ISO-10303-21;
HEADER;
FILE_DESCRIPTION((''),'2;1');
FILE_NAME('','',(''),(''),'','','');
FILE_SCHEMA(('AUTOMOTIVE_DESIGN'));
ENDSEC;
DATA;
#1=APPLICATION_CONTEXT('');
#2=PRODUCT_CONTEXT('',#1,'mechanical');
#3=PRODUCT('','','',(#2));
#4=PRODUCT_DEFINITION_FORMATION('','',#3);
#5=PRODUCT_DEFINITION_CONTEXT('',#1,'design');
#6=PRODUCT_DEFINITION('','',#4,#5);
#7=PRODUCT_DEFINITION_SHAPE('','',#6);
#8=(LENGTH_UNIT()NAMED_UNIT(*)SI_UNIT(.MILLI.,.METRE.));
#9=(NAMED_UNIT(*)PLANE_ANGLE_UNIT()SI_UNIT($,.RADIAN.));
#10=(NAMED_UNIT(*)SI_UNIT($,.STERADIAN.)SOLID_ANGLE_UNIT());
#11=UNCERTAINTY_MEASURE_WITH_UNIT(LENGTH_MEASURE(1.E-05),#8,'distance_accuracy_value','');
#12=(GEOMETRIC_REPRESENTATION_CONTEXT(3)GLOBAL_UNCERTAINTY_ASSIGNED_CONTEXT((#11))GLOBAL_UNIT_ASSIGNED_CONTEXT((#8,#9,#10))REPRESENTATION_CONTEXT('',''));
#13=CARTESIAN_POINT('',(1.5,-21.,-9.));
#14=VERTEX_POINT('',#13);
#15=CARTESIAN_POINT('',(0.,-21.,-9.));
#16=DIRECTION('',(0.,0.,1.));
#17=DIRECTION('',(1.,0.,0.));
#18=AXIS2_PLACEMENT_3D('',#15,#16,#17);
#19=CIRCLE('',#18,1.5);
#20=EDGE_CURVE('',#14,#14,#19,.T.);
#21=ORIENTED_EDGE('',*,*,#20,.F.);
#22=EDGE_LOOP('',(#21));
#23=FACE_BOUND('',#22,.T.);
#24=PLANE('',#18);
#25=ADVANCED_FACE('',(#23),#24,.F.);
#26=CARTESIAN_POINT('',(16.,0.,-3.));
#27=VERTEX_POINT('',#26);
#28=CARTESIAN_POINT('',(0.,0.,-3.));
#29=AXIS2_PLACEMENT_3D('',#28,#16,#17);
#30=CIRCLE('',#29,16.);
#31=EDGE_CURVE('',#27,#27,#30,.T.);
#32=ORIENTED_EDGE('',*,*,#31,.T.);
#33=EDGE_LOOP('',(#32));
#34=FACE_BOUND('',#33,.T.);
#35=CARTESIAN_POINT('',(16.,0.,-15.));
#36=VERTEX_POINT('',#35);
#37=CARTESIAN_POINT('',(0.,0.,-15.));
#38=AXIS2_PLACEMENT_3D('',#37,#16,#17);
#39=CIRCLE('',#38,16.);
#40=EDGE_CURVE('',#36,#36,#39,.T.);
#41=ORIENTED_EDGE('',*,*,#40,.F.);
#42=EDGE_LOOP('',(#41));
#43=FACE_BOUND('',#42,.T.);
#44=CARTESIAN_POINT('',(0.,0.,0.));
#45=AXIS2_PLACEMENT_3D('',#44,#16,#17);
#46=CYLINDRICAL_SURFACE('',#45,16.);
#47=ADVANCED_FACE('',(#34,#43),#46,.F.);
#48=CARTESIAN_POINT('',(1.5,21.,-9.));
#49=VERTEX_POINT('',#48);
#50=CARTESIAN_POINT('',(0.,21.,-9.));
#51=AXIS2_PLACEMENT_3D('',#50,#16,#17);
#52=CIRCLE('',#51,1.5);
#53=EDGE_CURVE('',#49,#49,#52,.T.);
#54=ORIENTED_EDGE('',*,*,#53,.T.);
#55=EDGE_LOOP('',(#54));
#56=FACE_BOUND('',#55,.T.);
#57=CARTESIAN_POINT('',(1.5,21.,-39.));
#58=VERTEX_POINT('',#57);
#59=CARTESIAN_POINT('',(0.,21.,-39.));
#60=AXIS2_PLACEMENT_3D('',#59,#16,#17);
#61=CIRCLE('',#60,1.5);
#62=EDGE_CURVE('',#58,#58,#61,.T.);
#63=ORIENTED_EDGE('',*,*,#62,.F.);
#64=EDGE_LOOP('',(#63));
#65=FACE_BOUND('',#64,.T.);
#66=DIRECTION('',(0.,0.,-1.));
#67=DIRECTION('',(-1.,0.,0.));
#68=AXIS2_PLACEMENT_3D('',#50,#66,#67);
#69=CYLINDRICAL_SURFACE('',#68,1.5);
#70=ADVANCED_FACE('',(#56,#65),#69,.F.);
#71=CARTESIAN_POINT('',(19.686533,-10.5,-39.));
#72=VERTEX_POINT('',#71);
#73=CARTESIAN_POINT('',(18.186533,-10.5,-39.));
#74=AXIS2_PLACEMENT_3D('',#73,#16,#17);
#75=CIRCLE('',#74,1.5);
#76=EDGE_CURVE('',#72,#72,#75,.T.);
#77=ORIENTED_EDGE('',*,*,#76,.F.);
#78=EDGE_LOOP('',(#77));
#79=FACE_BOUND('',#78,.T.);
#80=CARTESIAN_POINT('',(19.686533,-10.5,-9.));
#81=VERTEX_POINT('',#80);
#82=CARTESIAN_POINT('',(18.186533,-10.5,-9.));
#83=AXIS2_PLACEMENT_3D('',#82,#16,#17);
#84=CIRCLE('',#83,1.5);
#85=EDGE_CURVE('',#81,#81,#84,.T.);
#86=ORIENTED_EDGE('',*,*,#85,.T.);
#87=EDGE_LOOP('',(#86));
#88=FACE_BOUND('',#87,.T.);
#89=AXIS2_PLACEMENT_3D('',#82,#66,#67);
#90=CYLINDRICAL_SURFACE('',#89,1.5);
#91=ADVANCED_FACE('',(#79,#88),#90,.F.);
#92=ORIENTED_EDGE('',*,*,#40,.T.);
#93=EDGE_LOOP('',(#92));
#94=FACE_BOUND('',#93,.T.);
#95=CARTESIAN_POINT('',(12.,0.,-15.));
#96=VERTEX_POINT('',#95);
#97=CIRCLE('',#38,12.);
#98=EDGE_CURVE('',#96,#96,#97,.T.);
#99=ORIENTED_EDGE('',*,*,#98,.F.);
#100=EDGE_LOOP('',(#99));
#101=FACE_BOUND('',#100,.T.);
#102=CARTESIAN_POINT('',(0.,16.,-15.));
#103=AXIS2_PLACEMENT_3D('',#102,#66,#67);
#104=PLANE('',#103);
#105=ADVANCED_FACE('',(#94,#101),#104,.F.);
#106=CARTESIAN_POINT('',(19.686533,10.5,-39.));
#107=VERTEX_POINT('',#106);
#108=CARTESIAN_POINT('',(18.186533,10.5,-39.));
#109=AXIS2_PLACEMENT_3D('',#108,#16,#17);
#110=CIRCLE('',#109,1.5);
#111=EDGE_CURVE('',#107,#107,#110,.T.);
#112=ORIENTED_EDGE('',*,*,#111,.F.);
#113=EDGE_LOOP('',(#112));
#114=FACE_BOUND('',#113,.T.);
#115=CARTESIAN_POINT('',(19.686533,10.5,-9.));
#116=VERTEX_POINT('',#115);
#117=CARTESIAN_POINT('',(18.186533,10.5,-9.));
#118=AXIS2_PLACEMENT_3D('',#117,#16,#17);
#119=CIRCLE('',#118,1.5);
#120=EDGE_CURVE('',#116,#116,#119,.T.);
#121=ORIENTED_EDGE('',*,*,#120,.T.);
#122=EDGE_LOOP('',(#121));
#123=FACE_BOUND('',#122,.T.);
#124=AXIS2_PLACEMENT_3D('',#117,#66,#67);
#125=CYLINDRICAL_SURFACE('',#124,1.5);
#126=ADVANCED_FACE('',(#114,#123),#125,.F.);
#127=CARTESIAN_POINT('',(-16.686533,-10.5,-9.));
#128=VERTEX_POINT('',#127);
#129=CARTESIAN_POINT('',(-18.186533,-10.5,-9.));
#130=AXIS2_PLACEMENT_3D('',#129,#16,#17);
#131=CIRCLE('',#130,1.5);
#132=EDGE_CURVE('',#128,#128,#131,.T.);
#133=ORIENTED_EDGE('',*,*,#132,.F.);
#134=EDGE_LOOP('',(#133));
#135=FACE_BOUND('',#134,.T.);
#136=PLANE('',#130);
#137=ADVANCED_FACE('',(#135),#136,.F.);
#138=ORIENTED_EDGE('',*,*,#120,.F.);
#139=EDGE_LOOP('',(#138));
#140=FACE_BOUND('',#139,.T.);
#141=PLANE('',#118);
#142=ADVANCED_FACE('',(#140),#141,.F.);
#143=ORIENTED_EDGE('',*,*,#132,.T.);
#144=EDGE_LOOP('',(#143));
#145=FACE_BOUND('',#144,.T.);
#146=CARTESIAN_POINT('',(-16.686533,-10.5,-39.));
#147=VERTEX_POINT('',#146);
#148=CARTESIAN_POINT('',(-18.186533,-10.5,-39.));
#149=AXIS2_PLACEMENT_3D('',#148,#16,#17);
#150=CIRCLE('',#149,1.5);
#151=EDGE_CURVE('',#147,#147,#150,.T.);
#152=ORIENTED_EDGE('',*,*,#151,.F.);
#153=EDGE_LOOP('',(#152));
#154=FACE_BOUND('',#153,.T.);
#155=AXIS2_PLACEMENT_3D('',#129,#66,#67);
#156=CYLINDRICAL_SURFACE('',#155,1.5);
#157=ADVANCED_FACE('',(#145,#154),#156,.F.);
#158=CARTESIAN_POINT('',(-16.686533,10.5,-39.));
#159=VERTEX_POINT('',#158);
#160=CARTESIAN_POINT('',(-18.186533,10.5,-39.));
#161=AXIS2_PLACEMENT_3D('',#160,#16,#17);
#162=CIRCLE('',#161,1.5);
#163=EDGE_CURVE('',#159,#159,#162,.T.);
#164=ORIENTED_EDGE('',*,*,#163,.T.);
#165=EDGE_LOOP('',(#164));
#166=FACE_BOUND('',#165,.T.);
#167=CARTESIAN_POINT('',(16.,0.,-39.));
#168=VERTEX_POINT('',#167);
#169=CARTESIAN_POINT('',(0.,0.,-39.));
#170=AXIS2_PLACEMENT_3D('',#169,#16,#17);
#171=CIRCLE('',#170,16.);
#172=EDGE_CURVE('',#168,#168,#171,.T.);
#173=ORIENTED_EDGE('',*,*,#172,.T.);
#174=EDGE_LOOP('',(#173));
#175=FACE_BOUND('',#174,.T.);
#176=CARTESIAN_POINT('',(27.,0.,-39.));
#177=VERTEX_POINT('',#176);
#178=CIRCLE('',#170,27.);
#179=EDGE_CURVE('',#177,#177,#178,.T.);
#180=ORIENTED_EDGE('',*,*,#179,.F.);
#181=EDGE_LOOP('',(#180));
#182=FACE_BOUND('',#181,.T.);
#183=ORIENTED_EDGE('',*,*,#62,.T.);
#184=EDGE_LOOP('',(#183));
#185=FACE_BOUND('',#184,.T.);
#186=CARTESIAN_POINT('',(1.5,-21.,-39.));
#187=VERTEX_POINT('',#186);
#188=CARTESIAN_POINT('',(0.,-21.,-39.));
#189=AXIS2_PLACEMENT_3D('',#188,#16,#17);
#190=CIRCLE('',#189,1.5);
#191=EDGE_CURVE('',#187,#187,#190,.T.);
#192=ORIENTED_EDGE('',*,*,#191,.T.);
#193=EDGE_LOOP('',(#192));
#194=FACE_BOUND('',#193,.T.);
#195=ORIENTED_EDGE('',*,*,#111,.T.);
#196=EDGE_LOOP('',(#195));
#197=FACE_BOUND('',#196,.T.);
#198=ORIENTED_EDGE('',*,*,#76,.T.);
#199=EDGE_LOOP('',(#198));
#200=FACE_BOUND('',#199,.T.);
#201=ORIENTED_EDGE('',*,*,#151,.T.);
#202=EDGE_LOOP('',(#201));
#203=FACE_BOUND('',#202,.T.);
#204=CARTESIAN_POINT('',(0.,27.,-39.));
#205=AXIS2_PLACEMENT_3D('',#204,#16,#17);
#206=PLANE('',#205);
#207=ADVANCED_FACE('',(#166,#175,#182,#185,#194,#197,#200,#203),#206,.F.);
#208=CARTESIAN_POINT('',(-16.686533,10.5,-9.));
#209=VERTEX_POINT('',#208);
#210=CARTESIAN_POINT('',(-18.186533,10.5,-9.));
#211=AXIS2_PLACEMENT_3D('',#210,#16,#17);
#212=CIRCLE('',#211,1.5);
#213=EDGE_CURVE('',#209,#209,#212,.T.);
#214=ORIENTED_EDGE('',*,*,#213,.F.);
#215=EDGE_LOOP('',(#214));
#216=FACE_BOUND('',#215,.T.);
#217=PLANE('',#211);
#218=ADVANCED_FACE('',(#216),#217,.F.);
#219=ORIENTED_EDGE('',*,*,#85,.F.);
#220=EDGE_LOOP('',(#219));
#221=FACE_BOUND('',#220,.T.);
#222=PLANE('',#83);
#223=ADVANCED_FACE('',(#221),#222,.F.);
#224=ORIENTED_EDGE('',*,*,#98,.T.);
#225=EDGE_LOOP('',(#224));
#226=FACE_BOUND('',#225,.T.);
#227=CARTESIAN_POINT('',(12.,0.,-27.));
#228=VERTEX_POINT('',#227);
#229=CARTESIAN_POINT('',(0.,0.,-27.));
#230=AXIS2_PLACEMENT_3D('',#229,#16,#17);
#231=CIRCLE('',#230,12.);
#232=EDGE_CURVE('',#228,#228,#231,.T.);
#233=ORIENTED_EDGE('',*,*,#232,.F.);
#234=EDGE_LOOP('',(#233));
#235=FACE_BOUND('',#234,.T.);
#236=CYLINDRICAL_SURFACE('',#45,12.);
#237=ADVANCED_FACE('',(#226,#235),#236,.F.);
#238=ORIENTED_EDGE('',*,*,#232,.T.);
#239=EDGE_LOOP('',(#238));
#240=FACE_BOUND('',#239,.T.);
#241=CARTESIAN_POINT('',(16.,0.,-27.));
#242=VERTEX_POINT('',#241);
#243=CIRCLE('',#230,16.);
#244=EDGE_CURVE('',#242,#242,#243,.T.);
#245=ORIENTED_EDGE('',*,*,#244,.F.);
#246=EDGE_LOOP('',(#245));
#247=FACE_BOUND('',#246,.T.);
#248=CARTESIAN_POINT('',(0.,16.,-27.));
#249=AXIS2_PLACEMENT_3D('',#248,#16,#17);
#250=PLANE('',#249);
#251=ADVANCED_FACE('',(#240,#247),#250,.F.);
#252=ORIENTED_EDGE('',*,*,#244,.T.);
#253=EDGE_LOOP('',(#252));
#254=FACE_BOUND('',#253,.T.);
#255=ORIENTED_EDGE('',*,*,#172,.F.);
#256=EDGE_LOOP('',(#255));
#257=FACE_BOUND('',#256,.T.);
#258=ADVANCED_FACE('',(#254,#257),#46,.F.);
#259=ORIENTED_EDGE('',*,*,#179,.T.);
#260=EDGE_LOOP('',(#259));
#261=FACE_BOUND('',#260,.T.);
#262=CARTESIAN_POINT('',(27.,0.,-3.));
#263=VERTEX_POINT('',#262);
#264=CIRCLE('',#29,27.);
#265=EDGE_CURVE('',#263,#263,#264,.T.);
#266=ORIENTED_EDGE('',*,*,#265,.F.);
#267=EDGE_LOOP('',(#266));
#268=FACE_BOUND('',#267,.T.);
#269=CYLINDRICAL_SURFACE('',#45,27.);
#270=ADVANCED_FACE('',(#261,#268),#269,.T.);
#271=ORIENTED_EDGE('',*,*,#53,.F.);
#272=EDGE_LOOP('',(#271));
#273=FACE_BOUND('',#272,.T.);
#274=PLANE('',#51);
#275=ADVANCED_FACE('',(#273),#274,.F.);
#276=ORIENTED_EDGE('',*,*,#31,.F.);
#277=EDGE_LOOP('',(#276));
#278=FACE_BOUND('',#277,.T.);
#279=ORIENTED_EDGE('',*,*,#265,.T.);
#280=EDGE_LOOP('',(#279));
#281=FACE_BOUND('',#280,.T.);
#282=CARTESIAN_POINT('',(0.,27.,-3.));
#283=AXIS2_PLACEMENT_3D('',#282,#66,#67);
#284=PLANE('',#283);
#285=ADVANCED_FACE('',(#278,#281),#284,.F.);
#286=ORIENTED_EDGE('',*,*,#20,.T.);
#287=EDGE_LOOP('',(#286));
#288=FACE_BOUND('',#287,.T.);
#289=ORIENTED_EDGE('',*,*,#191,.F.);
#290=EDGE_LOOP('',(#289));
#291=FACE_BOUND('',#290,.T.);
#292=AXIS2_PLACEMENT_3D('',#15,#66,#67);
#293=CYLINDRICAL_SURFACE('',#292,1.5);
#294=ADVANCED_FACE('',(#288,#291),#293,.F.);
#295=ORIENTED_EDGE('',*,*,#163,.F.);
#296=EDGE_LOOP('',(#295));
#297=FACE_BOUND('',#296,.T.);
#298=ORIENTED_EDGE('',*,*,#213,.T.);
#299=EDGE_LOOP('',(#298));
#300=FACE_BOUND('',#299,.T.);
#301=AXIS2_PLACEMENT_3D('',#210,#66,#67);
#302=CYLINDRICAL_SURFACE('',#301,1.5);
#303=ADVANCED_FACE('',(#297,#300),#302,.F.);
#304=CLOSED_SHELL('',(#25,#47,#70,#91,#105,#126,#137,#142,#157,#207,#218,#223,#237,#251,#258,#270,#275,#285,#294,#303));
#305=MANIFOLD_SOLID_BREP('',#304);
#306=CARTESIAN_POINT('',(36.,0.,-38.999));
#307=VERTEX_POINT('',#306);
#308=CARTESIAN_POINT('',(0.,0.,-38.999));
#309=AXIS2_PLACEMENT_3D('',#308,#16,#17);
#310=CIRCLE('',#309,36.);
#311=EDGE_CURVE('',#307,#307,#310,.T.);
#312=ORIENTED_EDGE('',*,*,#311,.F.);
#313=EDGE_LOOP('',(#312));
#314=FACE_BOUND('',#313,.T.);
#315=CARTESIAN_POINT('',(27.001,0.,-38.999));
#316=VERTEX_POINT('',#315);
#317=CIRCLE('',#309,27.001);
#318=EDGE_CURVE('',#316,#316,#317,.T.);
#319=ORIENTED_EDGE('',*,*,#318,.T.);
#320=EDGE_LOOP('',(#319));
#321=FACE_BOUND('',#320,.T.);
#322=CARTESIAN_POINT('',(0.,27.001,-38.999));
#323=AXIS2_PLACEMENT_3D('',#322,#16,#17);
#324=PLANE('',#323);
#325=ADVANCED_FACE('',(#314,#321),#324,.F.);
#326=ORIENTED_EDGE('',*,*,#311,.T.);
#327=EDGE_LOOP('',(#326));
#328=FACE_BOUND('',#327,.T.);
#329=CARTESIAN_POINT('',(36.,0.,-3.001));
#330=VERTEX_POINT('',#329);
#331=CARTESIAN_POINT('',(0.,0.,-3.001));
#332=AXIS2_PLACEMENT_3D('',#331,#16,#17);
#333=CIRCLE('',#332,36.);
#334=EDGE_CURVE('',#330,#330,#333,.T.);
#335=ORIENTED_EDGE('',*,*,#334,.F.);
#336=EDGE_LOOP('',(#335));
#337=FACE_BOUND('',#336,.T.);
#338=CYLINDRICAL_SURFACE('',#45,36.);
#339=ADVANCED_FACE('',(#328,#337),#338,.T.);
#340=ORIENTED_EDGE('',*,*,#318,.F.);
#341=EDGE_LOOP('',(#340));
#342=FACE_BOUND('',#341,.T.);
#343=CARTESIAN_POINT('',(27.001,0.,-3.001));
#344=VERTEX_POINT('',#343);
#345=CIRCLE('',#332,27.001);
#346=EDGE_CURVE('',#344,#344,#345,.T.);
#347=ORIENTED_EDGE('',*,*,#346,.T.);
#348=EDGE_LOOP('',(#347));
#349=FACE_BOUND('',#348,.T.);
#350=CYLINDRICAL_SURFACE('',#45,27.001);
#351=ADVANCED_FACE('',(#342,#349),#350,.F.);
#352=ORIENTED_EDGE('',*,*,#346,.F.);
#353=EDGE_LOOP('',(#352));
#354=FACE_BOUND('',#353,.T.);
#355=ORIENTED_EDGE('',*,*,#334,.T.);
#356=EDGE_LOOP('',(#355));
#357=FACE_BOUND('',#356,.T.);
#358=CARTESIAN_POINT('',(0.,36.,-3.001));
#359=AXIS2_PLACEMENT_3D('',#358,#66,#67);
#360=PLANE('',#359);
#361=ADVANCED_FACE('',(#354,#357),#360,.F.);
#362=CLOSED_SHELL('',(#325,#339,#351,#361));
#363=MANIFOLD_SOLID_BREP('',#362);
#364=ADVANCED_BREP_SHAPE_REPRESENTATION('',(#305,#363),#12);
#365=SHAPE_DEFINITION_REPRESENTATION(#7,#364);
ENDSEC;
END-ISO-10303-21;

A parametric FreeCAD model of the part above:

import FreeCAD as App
import Part
import Sketcher
from FreeCAD import Vector
Q = App.Units.Quantity


def add_polygon(sketch, points):
    """Adds a closed chain of lines whose ends are joined by coincident constraints."""
    first, n = sketch.GeometryCount, len(points)
    for a, b in zip(points, points[1:] + points[:1]):
        sketch.addGeometry(Part.LineSegment(App.Vector(*a, 0), App.Vector(*b, 0)), False)
    for i in range(n):
        sketch.addConstraint(Sketcher.Constraint("Coincident", first + i, 2, first + (i + 1) % n, 1))

doc = App.newDocument("Part")
body = doc.addObject("PartDesign::Body", "Body")

# Sketch on YZ plane
sketch1 = body.newObject("Sketcher::SketchObject", "Sketch")
sketch1.AttachmentSupport = (doc.getObject("YZ_Plane"), [""])
sketch1.MapMode = "FlatFace"
add_polygon(sketch1, [(27, -39), (27, -3), (16, -3), (16, -15), (12, -15), (12, -27), (16, -27), (16, -39)])  # lines 0-7
sketch1.addConstraint(Sketcher.Constraint("Vertical", 0))
sketch1.addConstraint(Sketcher.Constraint("Horizontal", 1))
sketch1.addConstraint(Sketcher.Constraint("Vertical", 2))
sketch1.addConstraint(Sketcher.Constraint("Horizontal", 3))
sketch1.addConstraint(Sketcher.Constraint("Vertical", 4))
sketch1.addConstraint(Sketcher.Constraint("Horizontal", 5))
sketch1.addConstraint(Sketcher.Constraint("Vertical", 6))
sketch1.addConstraint(Sketcher.Constraint("Horizontal", 7))
sketch1.addConstraint(Sketcher.Constraint("Vertical", 2, 2, 5, 2))
sketch1.addConstraint(Sketcher.Constraint("Equal", 2, 4))
sketch1.addConstraint(Sketcher.Constraint("Equal", 4, 6))
sketch1.addConstraint(Sketcher.Constraint("DistanceX", 1, 2, 1, 1, Q("11 mm")))
sketch1.addConstraint(Sketcher.Constraint("DistanceX", 3, 2, 3, 1, Q("4 mm")))
sketch1.addConstraint(Sketcher.Constraint("DistanceY", 0, 1, 0, 2, Q("36 mm")))
sketch1.addConstraint(Sketcher.Constraint("DistanceX", -1, 1, 0, 2, Q("27 mm")))
sketch1.addConstraint(Sketcher.Constraint("DistanceY", 0, 2, -1, 1, Q("3 mm")))
revolution = body.newObject("PartDesign::Revolution", "Revolution")
revolution.Profile = sketch1
revolution.ReferenceAxis = (sketch1, ["V_Axis"])
revolution.Angle = 360

# Sketch on XY plane
sketch2 = body.newObject("Sketcher::SketchObject", "Sketch001")
sketch2.AttachmentSupport = (doc.getObject("XY_Plane"), [""])
sketch2.MapMode = "FlatFace"
sketch2.AttachmentOffset = App.Placement(Vector(0, 0, -39), App.Rotation())
sketch2.addGeometry(Part.Circle(Vector(0, 21, 0), Vector(0, 0, 1), 1.5), False)
sketch2.addGeometry(Part.Circle(Vector(18.186533, 10.5, 0), Vector(0, 0, 1), 1.5), False)
sketch2.addGeometry(Part.Circle(Vector(18.186533, -10.5, 0), Vector(0, 0, 1), 1.5), False)
sketch2.addGeometry(Part.Circle(Vector(0, -21, 0), Vector(0, 0, 1), 1.5), False)
sketch2.addGeometry(Part.Circle(Vector(-18.186533, -10.5, 0), Vector(0, 0, 1), 1.5), False)
sketch2.addGeometry(Part.Circle(Vector(-18.186533, 10.5, 0), Vector(0, 0, 1), 1.5), False)
sketch2.addConstraint(Sketcher.Constraint("Equal", 0, 1))
sketch2.addConstraint(Sketcher.Constraint("Equal", 1, 2))
sketch2.addConstraint(Sketcher.Constraint("Equal", 2, 3))
sketch2.addConstraint(Sketcher.Constraint("Equal", 3, 4))
sketch2.addConstraint(Sketcher.Constraint("Equal", 4, 5))
sketch2.addConstraint(Sketcher.Constraint("Symmetric", 0, 3, 3, 3, -1, 1))
sketch2.addConstraint(Sketcher.Constraint("Symmetric", 1, 3, 4, 3, -1, 1))
sketch2.addConstraint(Sketcher.Constraint("Symmetric", 2, 3, 5, 3, -1, 1))
sketch2.addConstraint(Sketcher.Constraint("Symmetric", 2, 3, 4, 3, -2))
sketch2.addConstraint(Sketcher.Constraint("PointOnObject", 0, 3, -2))
sketch2.addConstraint(Sketcher.Constraint("Diameter", 0, Q("3 mm")))
sketch2.addConstraint(Sketcher.Constraint("DistanceY", -1, 1, 0, 3, Q("21 mm")))
sketch2.addConstraint(Sketcher.Constraint("DistanceY", 2, 3, 1, 3, Q("21 mm")))
sketch2.addConstraint(Sketcher.Constraint("DistanceX", -1, 1, 1, 3, Q("18.186533 mm")))
pocket1 = body.newObject("PartDesign::Pocket", "Pocket")
pocket1.Profile = sketch2
pocket1.Length = 30
pocket1.Reversed = True
body2 = doc.addObject("PartDesign::Body", "Body001")

# Sketch on YZ plane
sketch3 = body2.newObject("Sketcher::SketchObject", "Sketch002")
sketch3.AttachmentSupport = (doc.getObject("YZ_Plane001"), [""])
sketch3.MapMode = "FlatFace"
add_polygon(sketch3, [(36, -3.001), (27.001, -3.001), (27.001, -38.999), (36, -38.999)])  # lines 0-3
sketch3.addConstraint(Sketcher.Constraint("Horizontal", 0))
sketch3.addConstraint(Sketcher.Constraint("Vertical", 1))
sketch3.addConstraint(Sketcher.Constraint("Horizontal", 2))
sketch3.addConstraint(Sketcher.Constraint("Vertical", 3))
sketch3.addConstraint(Sketcher.Constraint("DistanceX", -1, 1, 2, 2, Q("36 mm")))
sketch3.addConstraint(Sketcher.Constraint("DistanceX", 0, 2, 0, 1, Q("8.999 mm")))
sketch3.addConstraint(Sketcher.Constraint("DistanceY", 1, 2, 1, 1, Q("35.998 mm")))
sketch3.addConstraint(Sketcher.Constraint("DistanceY", 0, 2, -1, 1, Q("3.001 mm")))
revolution2 = body2.newObject("PartDesign::Revolution", "Revolution001")
revolution2.Profile = sketch3
revolution2.ReferenceAxis = (sketch3, ["V_Axis"])
revolution2.Angle = 360

doc.recompute()
